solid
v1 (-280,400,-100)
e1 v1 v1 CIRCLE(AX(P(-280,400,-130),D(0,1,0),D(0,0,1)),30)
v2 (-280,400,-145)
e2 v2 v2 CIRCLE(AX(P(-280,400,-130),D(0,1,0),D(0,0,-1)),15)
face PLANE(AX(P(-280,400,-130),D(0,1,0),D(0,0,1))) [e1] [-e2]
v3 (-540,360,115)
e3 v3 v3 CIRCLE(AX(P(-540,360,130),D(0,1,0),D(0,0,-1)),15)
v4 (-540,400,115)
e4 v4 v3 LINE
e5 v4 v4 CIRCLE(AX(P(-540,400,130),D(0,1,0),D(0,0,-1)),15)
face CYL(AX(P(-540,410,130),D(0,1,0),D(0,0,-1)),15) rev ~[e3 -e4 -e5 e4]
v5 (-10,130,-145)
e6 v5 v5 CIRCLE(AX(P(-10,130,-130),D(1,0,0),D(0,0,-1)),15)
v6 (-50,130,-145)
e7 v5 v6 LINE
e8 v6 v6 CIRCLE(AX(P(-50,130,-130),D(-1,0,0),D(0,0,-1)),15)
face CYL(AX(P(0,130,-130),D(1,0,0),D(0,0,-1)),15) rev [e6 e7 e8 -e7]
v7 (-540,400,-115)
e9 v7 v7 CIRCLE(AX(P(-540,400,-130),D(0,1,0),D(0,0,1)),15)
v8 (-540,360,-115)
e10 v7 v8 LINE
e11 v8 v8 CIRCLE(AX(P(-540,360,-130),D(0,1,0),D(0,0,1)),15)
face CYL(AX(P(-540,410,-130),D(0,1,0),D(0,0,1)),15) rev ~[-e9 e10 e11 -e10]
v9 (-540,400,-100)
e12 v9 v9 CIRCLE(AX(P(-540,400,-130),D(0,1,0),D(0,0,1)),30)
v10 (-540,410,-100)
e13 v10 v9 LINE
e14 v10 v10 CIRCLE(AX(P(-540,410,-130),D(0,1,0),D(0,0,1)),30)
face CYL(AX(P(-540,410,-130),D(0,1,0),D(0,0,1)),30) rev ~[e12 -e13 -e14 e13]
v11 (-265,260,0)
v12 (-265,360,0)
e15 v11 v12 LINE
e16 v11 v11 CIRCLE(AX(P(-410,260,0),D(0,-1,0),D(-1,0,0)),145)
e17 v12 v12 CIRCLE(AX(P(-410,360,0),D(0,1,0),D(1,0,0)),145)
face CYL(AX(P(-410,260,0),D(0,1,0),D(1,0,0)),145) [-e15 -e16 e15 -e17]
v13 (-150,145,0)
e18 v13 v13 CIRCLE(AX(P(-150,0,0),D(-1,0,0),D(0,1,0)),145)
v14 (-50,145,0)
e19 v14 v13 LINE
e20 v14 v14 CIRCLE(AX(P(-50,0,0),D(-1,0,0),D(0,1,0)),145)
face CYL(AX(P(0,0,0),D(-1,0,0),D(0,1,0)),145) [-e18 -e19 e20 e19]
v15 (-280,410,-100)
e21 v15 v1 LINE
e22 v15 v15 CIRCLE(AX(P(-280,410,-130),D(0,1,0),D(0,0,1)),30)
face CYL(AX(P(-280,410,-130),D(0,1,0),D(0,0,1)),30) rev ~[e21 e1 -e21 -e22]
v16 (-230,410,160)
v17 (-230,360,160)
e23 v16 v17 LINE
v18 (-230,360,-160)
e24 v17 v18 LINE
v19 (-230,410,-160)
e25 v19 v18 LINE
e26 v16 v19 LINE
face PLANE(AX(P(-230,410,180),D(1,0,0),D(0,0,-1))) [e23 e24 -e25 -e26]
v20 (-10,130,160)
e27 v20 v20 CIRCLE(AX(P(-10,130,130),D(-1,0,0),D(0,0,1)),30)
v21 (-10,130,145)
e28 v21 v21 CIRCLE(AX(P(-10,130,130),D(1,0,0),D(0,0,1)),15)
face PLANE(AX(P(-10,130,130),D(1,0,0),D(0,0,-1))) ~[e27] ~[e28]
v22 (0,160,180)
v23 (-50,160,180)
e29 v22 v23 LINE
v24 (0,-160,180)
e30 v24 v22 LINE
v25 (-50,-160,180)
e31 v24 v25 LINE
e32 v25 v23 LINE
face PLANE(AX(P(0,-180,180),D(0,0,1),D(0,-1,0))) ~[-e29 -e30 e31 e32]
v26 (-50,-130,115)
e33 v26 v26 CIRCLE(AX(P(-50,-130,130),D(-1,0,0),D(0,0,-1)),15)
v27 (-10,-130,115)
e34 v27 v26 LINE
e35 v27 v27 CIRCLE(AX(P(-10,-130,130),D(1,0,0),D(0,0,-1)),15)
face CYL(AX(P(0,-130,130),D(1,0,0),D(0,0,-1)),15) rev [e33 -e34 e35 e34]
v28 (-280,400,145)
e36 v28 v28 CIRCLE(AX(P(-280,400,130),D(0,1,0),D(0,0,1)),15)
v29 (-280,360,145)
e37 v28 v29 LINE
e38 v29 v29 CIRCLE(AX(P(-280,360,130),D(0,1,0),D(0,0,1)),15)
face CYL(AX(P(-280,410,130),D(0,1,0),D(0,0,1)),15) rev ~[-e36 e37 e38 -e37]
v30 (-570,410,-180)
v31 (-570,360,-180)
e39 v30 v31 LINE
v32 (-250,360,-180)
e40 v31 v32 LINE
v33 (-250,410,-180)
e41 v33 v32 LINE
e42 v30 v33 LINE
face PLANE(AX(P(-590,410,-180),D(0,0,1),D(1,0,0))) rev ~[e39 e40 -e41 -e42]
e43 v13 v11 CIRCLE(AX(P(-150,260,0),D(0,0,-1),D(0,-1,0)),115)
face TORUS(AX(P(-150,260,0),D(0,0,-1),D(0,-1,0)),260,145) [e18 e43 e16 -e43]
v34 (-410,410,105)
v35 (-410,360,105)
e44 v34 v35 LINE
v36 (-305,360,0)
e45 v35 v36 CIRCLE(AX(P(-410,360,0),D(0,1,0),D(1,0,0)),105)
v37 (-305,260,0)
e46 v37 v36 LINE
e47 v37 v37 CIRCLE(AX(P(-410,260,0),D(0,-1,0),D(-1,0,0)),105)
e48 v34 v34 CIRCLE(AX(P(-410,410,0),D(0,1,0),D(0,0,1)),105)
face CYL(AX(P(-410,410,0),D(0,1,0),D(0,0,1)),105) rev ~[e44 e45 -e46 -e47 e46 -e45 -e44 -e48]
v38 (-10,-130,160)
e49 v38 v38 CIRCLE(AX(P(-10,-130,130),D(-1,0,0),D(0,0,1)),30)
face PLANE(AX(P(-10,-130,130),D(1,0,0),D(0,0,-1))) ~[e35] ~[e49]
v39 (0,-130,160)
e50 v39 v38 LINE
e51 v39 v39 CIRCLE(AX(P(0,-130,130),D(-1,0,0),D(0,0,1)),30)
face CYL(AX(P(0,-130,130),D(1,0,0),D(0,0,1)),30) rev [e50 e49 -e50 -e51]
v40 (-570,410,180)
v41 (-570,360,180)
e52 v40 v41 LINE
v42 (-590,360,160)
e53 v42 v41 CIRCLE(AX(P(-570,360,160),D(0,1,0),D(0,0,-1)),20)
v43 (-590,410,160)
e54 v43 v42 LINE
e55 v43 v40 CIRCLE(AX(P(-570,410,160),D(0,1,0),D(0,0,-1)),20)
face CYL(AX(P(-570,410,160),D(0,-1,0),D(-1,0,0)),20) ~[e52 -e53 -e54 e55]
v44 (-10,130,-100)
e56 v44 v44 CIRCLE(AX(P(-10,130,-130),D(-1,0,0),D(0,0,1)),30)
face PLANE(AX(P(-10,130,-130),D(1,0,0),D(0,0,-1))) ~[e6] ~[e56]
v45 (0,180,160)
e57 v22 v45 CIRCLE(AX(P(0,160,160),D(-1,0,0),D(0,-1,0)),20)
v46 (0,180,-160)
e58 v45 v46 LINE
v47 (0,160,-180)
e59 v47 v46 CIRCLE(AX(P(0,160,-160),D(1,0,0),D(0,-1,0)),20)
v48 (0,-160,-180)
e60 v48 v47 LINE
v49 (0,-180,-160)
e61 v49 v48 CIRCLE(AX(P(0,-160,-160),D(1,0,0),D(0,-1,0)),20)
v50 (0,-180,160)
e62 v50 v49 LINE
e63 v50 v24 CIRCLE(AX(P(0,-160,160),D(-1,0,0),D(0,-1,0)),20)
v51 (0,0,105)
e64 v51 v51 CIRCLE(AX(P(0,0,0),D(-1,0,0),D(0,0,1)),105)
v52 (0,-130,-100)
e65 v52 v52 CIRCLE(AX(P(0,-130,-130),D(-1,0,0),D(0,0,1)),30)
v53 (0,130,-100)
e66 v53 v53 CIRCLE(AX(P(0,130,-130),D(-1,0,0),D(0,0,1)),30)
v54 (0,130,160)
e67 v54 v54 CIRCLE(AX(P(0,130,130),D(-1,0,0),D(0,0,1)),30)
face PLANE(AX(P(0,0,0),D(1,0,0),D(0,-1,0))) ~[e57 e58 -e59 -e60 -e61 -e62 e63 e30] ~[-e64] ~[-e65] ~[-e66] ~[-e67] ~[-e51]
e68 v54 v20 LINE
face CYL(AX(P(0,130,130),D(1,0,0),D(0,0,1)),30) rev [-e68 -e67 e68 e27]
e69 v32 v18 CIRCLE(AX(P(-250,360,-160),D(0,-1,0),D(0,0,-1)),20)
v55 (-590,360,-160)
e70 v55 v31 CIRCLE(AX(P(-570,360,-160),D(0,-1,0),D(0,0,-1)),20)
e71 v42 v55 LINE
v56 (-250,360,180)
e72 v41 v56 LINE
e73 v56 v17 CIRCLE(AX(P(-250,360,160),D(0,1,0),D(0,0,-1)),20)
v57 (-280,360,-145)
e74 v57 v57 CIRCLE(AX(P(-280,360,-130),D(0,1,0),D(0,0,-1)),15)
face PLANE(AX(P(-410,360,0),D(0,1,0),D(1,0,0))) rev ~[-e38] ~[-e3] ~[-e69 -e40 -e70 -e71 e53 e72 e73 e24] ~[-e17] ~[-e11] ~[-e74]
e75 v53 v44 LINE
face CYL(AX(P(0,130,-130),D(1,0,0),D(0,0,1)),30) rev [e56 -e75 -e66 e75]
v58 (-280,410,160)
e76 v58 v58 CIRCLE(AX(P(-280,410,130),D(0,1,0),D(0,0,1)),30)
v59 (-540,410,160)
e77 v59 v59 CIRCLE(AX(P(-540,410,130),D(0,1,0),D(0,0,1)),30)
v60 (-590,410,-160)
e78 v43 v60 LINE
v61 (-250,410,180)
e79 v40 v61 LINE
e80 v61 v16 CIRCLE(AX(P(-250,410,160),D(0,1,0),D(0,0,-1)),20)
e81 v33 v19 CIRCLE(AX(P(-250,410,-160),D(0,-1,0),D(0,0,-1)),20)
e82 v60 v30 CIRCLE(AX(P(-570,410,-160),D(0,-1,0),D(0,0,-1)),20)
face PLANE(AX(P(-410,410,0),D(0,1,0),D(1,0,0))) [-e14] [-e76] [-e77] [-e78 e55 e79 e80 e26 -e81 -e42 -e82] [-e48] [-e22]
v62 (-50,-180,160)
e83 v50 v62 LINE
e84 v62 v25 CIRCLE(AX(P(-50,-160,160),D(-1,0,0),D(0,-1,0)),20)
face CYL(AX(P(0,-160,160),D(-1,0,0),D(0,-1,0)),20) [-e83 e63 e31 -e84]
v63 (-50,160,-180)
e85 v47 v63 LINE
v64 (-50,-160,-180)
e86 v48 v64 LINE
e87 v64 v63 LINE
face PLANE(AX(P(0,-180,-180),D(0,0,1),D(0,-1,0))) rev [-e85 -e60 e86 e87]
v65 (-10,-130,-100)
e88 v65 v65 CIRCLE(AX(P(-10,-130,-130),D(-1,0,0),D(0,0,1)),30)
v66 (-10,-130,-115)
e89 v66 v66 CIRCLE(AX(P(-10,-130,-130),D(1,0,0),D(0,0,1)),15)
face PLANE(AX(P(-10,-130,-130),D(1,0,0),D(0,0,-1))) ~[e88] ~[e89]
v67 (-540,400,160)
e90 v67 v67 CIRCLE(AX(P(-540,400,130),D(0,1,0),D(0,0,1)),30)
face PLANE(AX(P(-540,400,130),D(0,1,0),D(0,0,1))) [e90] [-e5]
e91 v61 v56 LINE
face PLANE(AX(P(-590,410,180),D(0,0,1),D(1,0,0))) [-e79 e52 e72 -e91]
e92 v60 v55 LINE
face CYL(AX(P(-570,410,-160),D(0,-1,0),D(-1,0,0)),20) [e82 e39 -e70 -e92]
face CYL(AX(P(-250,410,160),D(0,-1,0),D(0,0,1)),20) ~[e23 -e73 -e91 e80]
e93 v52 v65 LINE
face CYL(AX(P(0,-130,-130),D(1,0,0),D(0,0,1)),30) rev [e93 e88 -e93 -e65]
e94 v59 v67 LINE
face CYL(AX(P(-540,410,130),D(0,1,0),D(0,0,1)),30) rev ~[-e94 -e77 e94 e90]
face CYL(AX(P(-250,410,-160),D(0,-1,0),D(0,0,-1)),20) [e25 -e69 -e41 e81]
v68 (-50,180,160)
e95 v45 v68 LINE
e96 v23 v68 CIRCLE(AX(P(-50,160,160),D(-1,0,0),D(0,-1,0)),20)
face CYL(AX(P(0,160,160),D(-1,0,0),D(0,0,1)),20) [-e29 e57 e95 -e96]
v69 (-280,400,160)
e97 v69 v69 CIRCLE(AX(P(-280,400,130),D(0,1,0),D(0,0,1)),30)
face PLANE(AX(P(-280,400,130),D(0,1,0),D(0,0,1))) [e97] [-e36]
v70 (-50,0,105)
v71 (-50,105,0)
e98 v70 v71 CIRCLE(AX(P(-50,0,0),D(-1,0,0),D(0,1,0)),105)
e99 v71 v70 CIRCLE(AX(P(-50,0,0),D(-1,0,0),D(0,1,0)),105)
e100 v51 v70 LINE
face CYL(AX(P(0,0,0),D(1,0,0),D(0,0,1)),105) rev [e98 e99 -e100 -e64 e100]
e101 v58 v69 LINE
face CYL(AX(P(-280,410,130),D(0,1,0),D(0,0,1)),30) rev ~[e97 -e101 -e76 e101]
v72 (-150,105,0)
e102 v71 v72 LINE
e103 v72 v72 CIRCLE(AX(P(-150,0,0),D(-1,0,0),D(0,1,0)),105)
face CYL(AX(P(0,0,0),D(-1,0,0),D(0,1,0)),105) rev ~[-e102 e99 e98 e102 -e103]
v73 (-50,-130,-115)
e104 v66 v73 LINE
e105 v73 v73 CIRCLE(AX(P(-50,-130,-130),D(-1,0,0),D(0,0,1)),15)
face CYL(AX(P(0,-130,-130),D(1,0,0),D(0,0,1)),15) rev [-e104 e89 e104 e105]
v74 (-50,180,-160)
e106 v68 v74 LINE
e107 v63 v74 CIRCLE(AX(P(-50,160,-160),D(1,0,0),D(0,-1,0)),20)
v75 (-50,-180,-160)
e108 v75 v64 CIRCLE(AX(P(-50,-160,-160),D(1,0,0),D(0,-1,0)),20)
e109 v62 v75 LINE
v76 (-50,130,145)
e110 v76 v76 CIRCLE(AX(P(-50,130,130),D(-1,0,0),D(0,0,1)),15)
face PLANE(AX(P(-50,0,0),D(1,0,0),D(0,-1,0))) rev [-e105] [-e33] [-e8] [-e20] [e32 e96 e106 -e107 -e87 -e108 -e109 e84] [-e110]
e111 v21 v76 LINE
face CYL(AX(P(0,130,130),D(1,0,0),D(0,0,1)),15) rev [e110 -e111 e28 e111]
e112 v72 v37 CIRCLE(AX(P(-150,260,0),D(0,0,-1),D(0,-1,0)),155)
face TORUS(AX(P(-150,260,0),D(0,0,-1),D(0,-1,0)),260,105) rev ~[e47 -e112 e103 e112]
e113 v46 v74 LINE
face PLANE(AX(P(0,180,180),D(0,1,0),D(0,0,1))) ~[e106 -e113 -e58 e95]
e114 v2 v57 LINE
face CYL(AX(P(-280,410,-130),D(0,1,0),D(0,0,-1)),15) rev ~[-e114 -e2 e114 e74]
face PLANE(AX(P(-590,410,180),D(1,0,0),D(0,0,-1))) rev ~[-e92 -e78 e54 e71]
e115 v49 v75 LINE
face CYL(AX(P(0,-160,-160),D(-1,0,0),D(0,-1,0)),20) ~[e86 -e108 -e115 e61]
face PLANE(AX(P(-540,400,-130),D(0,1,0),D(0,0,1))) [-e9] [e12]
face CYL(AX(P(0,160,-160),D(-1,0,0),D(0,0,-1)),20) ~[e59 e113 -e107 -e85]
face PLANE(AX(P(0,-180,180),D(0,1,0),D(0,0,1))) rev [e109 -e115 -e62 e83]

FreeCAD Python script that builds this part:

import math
import FreeCAD as App
import Part
import Sketcher
Q = App.Units.Quantity


def edges_at(feature, points):
    """Names of the edges that pass closest to the given points."""
    edges = feature.Shape.Edges
    near = lambda p: min(range(len(edges)), key=lambda i: edges[i].distToShape(Part.Vertex(*p))[0])
    return sorted({f"Edge{near(p) + 1}" for p in points})


def add_polygon(sketch, points):
    """Adds a closed chain of lines whose ends are joined by coincident constraints."""
    first, n = sketch.GeometryCount, len(points)
    for a, b in zip(points, points[1:] + points[:1]):
        sketch.addGeometry(Part.LineSegment(App.Vector(*a, 0), App.Vector(*b, 0)), False)
    for i in range(n):
        sketch.addConstraint(Sketcher.Constraint("Coincident", first + i, 2, first + (i + 1) % n, 1))

doc = App.newDocument("Part")
body = doc.addObject("PartDesign::Body", "Body")

sketch1 = body.newObject("Sketcher::SketchObject", "Sketch")
sketch1.AttachmentSupport = (doc.getObject("XZ_Plane"), [""])
sketch1.MapMode = "FlatFace"
sketch1.AttachmentOffset = App.Placement(App.Vector(0, 0, -410), App.Rotation())
sketch1.addGeometry([
    Part.Circle(App.Vector(-410, 0, 0), App.Vector(0, 0, 1), 145),
    Part.Circle(App.Vector(-410, 0, 0), App.Vector(0, 0, 1), 105),
], False)
sketch1.addConstraint([
    Sketcher.Constraint("Coincident", 1, 3, 0, 3),
    Sketcher.Constraint("PointOnObject", 0, 3, -1),
    Sketcher.Constraint("Diameter", 0, Q("290 mm")),
    Sketcher.Constraint("Diameter", 1, Q("210 mm")),
    Sketcher.Constraint("DistanceX", 0, 3, -1, 1, Q("410 mm")),
])

sketch2 = body.newObject("Sketcher::SketchObject", "Sketch001")
sketch2.AttachmentSupport = (doc.getObject("XY_Plane"), [""])
sketch2.MapMode = "FlatFace"
sketch2.addGeometry([
    Part.LineSegment(App.Vector(0, 0, 0), App.Vector(-150, 0, 0)),
    Part.ArcOfCircle(Part.Circle(App.Vector(-150, 260, 0), App.Vector(0, 0, 1), 260), math.radians(180), math.radians(270)),
    Part.LineSegment(App.Vector(-410, 260, 0), App.Vector(-410, 410, 0)),
], False)
sketch2.addConstraint([
    Sketcher.Constraint("Tangent", 0, 2, 1, 2),
    Sketcher.Constraint("Tangent", 1, 1, 2, 1),
    Sketcher.Constraint("Horizontal", 0),
    Sketcher.Constraint("Vertical", 2),
    Sketcher.Constraint("Coincident", 0, 1, -1, 1),
    Sketcher.Constraint("Equal", 0, 2),
    Sketcher.Constraint("Radius", 1, Q("260 mm")),
    Sketcher.Constraint("DistanceX", 0, 2, 0, 1, Q("150 mm")),
])
doc.recompute()

additivepipe = body.newObject("PartDesign::AdditivePipe", "AdditivePipe")
additivepipe.Profile = sketch1
additivepipe.Spine = (sketch2, ["Edge1", "Edge2", "Edge3"])

sketch3 = body.newObject("Sketcher::SketchObject", "Sketch002")
sketch3.AttachmentSupport = (doc.getObject("XZ_Plane"), [""])
sketch3.MapMode = "FlatFace"
sketch3.AttachmentOffset = App.Placement(App.Vector(0, 0, -410), App.Rotation())
add_polygon(sketch3, [(-590, -180), (-590, 180), (-230, 180), (-230, -180)])
sketch3.addConstraint([
    Sketcher.Constraint("Vertical", 0),
    Sketcher.Constraint("Horizontal", 1),
    Sketcher.Constraint("Vertical", 2),
    Sketcher.Constraint("Horizontal", 3),
    Sketcher.Constraint("Equal", 3, 0),
    Sketcher.Constraint("DistanceX", 1, 1, 1, 2, Q("360 mm")),
    Sketcher.Constraint("DistanceX", 0, 2, -1, 1, Q("590 mm")),
    Sketcher.Constraint("DistanceY", -1, 1, 0, 2, Q("180 mm")),
])
pad1 = body.newObject("PartDesign::Pad", "Pad")
pad1.Profile = sketch3
pad1.Length = 50

sketch4 = body.newObject("Sketcher::SketchObject", "Sketch003")
sketch4.AttachmentSupport = (doc.getObject("XZ_Plane"), [""])
sketch4.MapMode = "FlatFace"
sketch4.AttachmentOffset = App.Placement(App.Vector(0, 0, -410), App.Rotation())
sketch4.addGeometry(Part.Circle(App.Vector(-410, 0, 0), App.Vector(0, 0, 1), 105), False)
sketch4.addConstraint([
    Sketcher.Constraint("PointOnObject", 0, 3, -1),
    Sketcher.Constraint("Diameter", 0, Q("210 mm")),
    Sketcher.Constraint("DistanceX", 0, 3, -1, 1, Q("410 mm")),
])
pocket1 = body.newObject("PartDesign::Pocket", "Pocket")
pocket1.Profile = sketch4
pocket1.Length = 50
pocket1.Reversed = True
doc.recompute()

fillet = body.newObject("PartDesign::Fillet", "Fillet")
fillet.Base = (pocket1, edges_at(pocket1, [
    (-590, 385, 180),
    (-590, 385, -180),
    (-230, 385, -180),
    (-230, 385, 180),
]))
fillet.Radius = 20

sketch5 = body.newObject("Sketcher::SketchObject", "Sketch004")
sketch5.AttachmentSupport = (doc.getObject("XZ_Plane"), [""])
sketch5.MapMode = "FlatFace"
sketch5.AttachmentOffset = App.Placement(App.Vector(0, 0, -410), App.Rotation())
sketch5.addGeometry([
    Part.Circle(App.Vector(-540, -130, 0), App.Vector(0, 0, 1), 15),
    Part.Circle(App.Vector(-280, -130, 0), App.Vector(0, 0, 1), 15),
    Part.Circle(App.Vector(-280, 130, 0), App.Vector(0, 0, 1), 15),
    Part.Circle(App.Vector(-540, 130, 0), App.Vector(0, 0, 1), 15),
], False)
sketch5.addConstraint([
    Sketcher.Constraint("Equal", 0, 1),
    Sketcher.Constraint("Equal", 1, 2),
    Sketcher.Constraint("Equal", 2, 3),
    Sketcher.Constraint("Symmetric", 1, 3, 2, 3, -1),
    Sketcher.Constraint("Symmetric", 0, 3, 3, 3, -1),
    Sketcher.Constraint("Horizontal", 0, 3, 1, 3),
    Sketcher.Constraint("Diameter", 0, Q("30 mm")),
    Sketcher.Constraint("DistanceX", 0, 3, -1, 1, Q("540 mm")),
    Sketcher.Constraint("DistanceY", 0, 3, -1, 1, Q("130 mm")),
    Sketcher.Constraint("DistanceX", 1, 3, -1, 1, Q("280 mm")),
])
pocket2 = body.newObject("PartDesign::Pocket", "Pocket001")
pocket2.Profile = sketch5
pocket2.Length = 50
pocket2.Reversed = True

sketch6 = body.newObject("Sketcher::SketchObject", "Sketch005")
sketch6.AttachmentSupport = (doc.getObject("XZ_Plane"), [""])
sketch6.MapMode = "FlatFace"
sketch6.AttachmentOffset = App.Placement(App.Vector(0, 0, -410), App.Rotation())
sketch6.addGeometry([
    Part.Circle(App.Vector(-540, 130, 0), App.Vector(0, 0, 1), 30),
    Part.Circle(App.Vector(-280, 130, 0), App.Vector(0, 0, 1), 30),
    Part.Circle(App.Vector(-540, -130, 0), App.Vector(0, 0, 1), 30),
    Part.Circle(App.Vector(-280, -130, 0), App.Vector(0, 0, 1), 30),
], False)
sketch6.addConstraint([
    Sketcher.Constraint("Equal", 0, 1),
    Sketcher.Constraint("Equal", 1, 2),
    Sketcher.Constraint("Equal", 2, 3),
    Sketcher.Constraint("Symmetric", 0, 3, 2, 3, -1),
    Sketcher.Constraint("Symmetric", 1, 3, 3, 3, -1),
    Sketcher.Constraint("Horizontal", 0, 3, 1, 3),
    Sketcher.Constraint("Diameter", 0, Q("60 mm")),
    Sketcher.Constraint("DistanceX", 0, 3, -1, 1, Q("540 mm")),
    Sketcher.Constraint("DistanceY", -1, 1, 0, 3, Q("130 mm")),
    Sketcher.Constraint("DistanceX", 1, 3, -1, 1, Q("280 mm")),
])
pocket3 = body.newObject("PartDesign::Pocket", "Pocket002")
pocket3.Profile = sketch6
pocket3.Length = 10
pocket3.Reversed = True
doc.recompute()

datumplane = body.newObject("PartDesign::Plane", "DatumPlane")
datumplane.Placement = App.Placement(App.Vector(-205, 205, 0), App.Rotation(App.Vector(0.707106781, 0.707106781, 0), App.Vector(0, 0, -1), App.Vector(-0.707106781, 0.707106781, 0), "ZXY"))
mirrored = body.newObject("PartDesign::Mirrored", "Mirrored")
mirrored.Originals = [pad1, pocket1, pocket2, pocket3]
mirrored.MirrorPlane = (datumplane, [""])
body.Tip = mirrored
doc.recompute()

fillet2 = body.newObject("PartDesign::Fillet", "Fillet001")
fillet2.Base = (mirrored, edges_at(mirrored, [
    (-25, -180, 180),
    (-25, -180, -180),
    (-25, 180, -180),
    (-25, 180, 180),
]))
fillet2.Radius = 20

doc.recompute()
